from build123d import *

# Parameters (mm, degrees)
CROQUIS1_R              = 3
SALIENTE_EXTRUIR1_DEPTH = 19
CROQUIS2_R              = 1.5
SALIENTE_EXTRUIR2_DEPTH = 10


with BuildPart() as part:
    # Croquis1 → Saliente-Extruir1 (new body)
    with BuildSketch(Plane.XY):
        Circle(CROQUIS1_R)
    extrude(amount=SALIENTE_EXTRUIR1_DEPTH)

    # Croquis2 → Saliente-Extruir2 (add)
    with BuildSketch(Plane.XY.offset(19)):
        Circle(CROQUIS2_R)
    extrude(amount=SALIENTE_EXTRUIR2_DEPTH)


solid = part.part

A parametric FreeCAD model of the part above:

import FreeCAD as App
import Part
import Sketcher

V = App.Vector
Q = App.Units.Quantity

doc = App.newDocument("Part")
body = doc.addObject("PartDesign::Body", "Body")

# Sketch on XY plane
sketch1 = body.newObject("Sketcher::SketchObject", "Sketch")
sketch1.AttachmentSupport = (doc.getObject("XY_Plane"), [""])
sketch1.MapMode = "FlatFace"
sketch1.addGeometry(Part.Circle(V(0, 0, 0), V(0, 0, 1), 3), False)
sketch1.addConstraint([
    Sketcher.Constraint("Coincident", 0, 3, -1, 1),
    Sketcher.Constraint("Diameter", 0, Q("6 mm")),
])
pad1 = body.newObject("PartDesign::Pad", "Pad")
pad1.Profile = sketch1
pad1.Length = 19

# Sketch on XY plane
sketch2 = body.newObject("Sketcher::SketchObject", "Sketch001")
sketch2.AttachmentSupport = (doc.getObject("XY_Plane"), [""])
sketch2.MapMode = "FlatFace"
sketch2.AttachmentOffset = App.Placement(V(0, 0, 19), App.Rotation())
sketch2.addGeometry(Part.Circle(V(0, 0, 0), V(0, 0, 1), 1.5), False)
sketch2.addConstraint([
    Sketcher.Constraint("Coincident", 0, 3, -1, 1),
    Sketcher.Constraint("Diameter", 0, Q("3 mm")),
])
pad2 = body.newObject("PartDesign::Pad", "Pad001")
pad2.Profile = sketch2
pad2.Length = 10

doc.recompute()
